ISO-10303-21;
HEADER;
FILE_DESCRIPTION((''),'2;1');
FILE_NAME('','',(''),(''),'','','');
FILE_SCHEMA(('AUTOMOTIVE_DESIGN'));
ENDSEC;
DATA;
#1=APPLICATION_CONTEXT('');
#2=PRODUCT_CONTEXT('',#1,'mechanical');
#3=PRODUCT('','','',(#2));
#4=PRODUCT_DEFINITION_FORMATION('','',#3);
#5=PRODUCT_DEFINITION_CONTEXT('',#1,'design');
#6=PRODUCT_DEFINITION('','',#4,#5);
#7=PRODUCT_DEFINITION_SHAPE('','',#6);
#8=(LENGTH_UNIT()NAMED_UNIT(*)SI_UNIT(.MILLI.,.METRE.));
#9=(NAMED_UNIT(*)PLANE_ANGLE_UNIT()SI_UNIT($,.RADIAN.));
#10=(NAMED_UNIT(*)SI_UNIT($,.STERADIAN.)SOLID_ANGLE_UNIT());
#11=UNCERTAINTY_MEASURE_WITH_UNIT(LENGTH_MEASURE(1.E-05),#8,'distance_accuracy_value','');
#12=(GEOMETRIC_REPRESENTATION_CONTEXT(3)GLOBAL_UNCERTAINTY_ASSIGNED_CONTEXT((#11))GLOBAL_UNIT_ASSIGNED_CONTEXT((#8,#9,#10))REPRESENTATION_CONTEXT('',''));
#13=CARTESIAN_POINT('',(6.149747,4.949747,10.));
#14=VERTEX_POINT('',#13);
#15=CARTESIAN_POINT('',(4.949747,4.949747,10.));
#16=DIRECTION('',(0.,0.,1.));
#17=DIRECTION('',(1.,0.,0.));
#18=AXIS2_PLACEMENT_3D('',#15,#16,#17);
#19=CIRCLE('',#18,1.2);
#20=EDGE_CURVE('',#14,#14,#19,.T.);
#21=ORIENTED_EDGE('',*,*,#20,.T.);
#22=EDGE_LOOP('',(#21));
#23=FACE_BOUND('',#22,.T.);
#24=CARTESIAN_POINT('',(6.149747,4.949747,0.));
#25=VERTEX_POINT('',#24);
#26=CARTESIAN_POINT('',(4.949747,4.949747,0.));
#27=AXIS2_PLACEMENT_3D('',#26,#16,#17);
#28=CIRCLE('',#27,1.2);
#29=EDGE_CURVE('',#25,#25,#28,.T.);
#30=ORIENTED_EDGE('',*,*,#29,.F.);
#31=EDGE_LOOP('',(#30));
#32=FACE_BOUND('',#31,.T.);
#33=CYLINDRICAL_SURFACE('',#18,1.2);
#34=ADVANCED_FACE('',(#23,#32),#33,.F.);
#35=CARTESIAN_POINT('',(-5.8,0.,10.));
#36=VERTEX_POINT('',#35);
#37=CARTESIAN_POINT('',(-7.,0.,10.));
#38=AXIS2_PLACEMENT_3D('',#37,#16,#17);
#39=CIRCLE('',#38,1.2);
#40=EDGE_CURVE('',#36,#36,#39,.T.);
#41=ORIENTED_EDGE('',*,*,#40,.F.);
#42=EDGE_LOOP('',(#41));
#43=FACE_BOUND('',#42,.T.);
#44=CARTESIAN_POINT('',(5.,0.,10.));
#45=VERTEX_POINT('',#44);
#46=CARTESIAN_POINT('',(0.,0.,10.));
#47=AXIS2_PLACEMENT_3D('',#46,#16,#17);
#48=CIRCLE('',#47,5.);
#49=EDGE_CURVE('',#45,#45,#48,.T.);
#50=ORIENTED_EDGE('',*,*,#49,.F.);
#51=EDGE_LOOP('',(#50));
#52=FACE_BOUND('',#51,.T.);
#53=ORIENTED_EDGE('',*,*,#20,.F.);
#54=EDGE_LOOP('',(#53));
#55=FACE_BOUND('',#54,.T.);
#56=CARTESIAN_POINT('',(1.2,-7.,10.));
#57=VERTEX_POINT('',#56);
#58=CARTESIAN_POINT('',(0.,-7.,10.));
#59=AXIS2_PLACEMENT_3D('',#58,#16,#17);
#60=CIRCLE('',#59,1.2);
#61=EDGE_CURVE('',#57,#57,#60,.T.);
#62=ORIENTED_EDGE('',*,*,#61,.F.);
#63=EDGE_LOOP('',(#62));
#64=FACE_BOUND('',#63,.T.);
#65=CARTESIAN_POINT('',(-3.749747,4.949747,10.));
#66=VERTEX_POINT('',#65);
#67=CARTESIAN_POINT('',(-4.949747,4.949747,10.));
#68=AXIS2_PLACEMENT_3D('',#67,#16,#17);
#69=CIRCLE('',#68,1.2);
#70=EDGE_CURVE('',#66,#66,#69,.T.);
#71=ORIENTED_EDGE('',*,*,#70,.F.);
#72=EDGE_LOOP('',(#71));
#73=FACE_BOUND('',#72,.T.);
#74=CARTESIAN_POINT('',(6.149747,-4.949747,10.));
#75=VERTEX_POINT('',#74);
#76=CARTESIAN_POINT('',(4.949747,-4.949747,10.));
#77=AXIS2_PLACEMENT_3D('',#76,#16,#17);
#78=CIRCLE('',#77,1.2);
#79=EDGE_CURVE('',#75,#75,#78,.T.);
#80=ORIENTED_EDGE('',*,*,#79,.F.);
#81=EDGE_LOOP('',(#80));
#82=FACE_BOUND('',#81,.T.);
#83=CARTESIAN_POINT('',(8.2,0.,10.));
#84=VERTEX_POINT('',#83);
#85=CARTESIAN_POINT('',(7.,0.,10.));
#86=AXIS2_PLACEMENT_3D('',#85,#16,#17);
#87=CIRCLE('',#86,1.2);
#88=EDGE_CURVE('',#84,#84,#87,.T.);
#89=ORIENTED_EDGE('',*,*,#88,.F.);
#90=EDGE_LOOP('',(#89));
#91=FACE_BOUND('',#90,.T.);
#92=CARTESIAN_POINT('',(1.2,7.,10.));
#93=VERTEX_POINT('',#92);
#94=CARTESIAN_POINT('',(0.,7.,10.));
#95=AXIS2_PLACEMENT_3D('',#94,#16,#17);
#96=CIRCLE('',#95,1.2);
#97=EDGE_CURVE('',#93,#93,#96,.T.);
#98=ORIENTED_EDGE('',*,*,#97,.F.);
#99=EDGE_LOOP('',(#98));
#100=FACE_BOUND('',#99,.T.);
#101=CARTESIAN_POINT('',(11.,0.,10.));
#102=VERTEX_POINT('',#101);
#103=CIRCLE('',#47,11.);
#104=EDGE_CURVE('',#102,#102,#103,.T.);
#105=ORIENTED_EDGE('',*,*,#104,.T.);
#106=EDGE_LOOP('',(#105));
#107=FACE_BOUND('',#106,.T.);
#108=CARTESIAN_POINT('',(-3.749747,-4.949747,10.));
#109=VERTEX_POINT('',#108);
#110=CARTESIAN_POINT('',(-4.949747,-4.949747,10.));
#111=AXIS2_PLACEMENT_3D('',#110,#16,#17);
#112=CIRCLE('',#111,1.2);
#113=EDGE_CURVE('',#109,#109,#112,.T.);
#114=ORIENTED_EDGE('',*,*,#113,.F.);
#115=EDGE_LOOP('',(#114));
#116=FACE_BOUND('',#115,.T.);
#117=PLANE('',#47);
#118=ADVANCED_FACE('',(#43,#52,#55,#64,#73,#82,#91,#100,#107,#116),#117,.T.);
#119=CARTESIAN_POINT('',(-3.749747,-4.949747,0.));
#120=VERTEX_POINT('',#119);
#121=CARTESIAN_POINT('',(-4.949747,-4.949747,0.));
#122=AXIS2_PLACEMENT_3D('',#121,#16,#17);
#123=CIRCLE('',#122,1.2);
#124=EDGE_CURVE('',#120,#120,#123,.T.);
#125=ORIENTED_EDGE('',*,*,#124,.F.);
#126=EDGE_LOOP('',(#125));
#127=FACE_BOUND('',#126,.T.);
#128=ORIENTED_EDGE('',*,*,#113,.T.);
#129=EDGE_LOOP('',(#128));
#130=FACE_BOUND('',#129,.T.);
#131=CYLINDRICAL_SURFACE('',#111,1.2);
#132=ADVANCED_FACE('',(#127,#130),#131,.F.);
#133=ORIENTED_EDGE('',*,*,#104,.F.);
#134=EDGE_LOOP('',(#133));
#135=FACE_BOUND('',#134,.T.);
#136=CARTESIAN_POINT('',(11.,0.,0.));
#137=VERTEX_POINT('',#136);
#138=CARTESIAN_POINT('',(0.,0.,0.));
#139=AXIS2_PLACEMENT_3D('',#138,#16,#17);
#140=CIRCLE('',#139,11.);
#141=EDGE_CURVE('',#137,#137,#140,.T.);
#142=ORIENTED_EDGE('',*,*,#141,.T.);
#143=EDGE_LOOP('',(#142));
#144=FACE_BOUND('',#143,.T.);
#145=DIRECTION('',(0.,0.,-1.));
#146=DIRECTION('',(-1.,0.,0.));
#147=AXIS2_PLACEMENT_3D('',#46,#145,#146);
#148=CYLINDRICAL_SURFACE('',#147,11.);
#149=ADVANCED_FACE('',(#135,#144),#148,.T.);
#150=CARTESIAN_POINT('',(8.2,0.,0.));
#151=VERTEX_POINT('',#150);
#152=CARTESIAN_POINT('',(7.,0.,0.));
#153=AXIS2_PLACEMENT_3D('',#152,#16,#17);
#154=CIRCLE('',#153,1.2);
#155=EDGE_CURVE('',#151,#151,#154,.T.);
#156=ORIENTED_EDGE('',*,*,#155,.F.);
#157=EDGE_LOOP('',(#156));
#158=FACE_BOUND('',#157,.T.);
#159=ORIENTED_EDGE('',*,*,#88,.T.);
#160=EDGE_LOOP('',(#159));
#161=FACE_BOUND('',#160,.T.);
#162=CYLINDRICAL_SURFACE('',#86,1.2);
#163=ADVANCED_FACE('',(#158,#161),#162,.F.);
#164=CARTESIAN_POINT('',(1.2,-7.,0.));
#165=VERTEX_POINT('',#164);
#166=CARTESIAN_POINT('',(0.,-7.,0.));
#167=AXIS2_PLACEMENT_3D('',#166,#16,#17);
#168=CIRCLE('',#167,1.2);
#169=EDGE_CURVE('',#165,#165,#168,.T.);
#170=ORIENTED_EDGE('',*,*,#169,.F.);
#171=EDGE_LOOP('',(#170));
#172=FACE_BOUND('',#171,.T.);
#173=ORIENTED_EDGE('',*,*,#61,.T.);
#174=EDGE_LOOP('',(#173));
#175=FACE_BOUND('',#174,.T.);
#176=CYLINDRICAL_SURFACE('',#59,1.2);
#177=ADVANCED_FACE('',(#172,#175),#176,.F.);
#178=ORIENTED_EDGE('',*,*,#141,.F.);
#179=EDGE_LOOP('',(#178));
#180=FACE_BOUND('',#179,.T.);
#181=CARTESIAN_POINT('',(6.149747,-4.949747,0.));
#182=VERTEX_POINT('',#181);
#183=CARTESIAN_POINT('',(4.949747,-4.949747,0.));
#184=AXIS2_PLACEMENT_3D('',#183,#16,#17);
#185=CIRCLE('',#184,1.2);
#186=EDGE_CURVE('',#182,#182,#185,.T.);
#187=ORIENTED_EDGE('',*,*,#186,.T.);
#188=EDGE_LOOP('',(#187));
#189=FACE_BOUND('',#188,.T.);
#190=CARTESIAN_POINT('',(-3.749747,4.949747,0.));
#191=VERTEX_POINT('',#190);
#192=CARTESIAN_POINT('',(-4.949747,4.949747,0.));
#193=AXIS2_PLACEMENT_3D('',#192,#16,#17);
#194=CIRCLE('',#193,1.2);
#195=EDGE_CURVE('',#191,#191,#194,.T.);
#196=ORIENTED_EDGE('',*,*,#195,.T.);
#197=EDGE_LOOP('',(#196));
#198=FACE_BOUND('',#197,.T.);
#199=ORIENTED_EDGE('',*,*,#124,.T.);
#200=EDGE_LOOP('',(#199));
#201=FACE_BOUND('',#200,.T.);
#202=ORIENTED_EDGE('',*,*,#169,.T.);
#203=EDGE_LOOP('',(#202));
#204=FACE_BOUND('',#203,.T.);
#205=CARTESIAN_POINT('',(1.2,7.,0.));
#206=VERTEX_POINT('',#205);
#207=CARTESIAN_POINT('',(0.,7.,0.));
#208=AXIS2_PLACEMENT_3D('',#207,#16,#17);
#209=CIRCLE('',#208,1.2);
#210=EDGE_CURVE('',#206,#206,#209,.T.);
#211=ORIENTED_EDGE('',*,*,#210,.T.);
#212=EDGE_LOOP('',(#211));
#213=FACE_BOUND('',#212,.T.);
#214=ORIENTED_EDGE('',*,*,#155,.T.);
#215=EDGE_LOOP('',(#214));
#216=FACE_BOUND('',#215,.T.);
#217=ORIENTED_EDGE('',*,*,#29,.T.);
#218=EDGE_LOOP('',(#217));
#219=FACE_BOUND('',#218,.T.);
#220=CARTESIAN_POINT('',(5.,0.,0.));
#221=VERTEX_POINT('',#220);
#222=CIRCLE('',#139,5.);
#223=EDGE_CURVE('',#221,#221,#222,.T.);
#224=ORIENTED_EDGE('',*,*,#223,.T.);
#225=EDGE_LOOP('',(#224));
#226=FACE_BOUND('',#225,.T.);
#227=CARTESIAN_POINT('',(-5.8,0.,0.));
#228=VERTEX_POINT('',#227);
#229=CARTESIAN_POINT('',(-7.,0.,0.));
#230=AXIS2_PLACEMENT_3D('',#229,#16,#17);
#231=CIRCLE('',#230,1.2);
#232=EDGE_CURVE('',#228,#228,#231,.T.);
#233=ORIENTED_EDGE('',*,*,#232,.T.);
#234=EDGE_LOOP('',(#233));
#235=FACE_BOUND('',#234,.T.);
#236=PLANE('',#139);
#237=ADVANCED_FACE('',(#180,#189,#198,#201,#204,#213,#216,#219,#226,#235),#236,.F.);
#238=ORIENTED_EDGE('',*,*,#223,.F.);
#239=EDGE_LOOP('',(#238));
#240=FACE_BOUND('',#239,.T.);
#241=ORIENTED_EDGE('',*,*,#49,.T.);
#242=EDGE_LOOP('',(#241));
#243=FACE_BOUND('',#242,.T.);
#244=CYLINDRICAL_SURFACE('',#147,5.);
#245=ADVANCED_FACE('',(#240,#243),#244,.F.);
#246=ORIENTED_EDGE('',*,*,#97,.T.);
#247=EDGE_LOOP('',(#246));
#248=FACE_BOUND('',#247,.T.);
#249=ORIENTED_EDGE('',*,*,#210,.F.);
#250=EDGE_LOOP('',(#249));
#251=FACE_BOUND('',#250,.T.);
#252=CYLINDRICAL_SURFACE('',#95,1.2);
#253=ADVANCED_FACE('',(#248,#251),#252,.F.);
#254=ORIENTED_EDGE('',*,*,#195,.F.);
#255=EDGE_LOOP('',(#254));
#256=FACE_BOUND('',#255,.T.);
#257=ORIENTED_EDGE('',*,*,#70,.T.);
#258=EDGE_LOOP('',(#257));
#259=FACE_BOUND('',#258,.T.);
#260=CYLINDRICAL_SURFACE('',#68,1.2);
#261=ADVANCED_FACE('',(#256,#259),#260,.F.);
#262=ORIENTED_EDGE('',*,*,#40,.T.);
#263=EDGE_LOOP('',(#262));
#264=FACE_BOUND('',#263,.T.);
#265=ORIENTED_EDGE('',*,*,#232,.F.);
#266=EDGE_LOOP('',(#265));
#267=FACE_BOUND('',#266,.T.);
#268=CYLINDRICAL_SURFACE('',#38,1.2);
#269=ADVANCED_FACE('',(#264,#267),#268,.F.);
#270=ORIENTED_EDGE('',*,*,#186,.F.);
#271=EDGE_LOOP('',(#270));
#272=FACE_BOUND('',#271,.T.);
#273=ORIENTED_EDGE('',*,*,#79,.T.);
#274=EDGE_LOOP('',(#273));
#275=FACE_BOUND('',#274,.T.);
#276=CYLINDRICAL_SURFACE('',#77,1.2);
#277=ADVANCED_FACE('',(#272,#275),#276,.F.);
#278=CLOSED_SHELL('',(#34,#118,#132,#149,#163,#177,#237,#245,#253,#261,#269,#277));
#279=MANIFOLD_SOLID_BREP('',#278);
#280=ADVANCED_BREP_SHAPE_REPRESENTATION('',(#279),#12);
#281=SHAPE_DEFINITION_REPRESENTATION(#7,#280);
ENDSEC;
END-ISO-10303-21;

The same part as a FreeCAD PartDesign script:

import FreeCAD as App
import Part
import Sketcher
from FreeCAD import Vector
Q = App.Units.Quantity

doc = App.newDocument("Part")
body = doc.addObject("PartDesign::Body", "Body")

# Sketch on XY plane
sketch1 = body.newObject("Sketcher::SketchObject", "Sketch")
sketch1.AttachmentSupport = (doc.getObject("XY_Plane"), [""])
sketch1.MapMode = "FlatFace"
sketch1.addGeometry(Part.Circle(Vector(0, 0, 0), Vector(0, 0, 1), 11), False)
sketch1.addGeometry(Part.Circle(Vector(0, 0, 0), Vector(0, 0, 1), 5), False)
sketch1.addConstraint(Sketcher.Constraint("Coincident", 0, 3, -1, 1))
sketch1.addConstraint(Sketcher.Constraint("Coincident", 1, 3, -1, 1))
sketch1.addConstraint(Sketcher.Constraint("Diameter", 0, Q("22 mm")))
sketch1.addConstraint(Sketcher.Constraint("Diameter", 1, Q("10 mm")))
pad1 = body.newObject("PartDesign::Pad", "Pad")
pad1.Profile = sketch1
pad1.Length = 10

# Sketch on XY plane
sketch2 = body.newObject("Sketcher::SketchObject", "Sketch001")
sketch2.AttachmentSupport = (doc.getObject("XY_Plane"), [""])
sketch2.MapMode = "FlatFace"
sketch2.AttachmentOffset = App.Placement(Vector(0, 0, 10), App.Rotation())
sketch2.addGeometry(Part.Circle(Vector(0, 7, 0), Vector(0, 0, 1), 1.2), False)
sketch2.addGeometry(Part.Circle(Vector(4.9, 4.9, 0), Vector(0, 0, 1), 1.2), False)
sketch2.addGeometry(Part.Circle(Vector(7, 0, 0), Vector(0, 0, 1), 1.2), False)
sketch2.addGeometry(Part.Circle(Vector(4.9, -4.9, 0), Vector(0, 0, 1), 1.2), False)
sketch2.addGeometry(Part.Circle(Vector(0, -7, 0), Vector(0, 0, 1), 1.2), False)
sketch2.addGeometry(Part.Circle(Vector(-4.9, -4.9, 0), Vector(0, 0, 1), 1.2), False)
sketch2.addGeometry(Part.Circle(Vector(-7, 0, 0), Vector(0, 0, 1), 1.2), False)
sketch2.addGeometry(Part.Circle(Vector(-4.9, 4.9, 0), Vector(0, 0, 1), 1.2), False)
sketch2.addGeometry(Part.Circle(Vector(0, 0, 0), Vector(0, 0, 1), 1.2), False)
sketch2.addConstraint(Sketcher.Constraint("Coincident", 8, 3, -1, 1))
sketch2.addConstraint(Sketcher.Constraint("Equal", 0, 1))
sketch2.addConstraint(Sketcher.Constraint("Equal", 1, 2))
sketch2.addConstraint(Sketcher.Constraint("Equal", 2, 3))
sketch2.addConstraint(Sketcher.Constraint("Equal", 3, 4))
sketch2.addConstraint(Sketcher.Constraint("Equal", 4, 5))
sketch2.addConstraint(Sketcher.Constraint("Equal", 5, 6))
sketch2.addConstraint(Sketcher.Constraint("Equal", 6, 7))
sketch2.addConstraint(Sketcher.Constraint("Equal", 7, 8))
sketch2.addConstraint(Sketcher.Constraint("Symmetric", 0, 3, 4, 3, -1, 1))
sketch2.addConstraint(Sketcher.Constraint("Symmetric", 1, 3, 5, 3, -1, 1))
sketch2.addConstraint(Sketcher.Constraint("Symmetric", 2, 3, 6, 3, -1, 1))
sketch2.addConstraint(Sketcher.Constraint("Symmetric", 3, 3, 7, 3, -1, 1))
sketch2.addConstraint(Sketcher.Constraint("Symmetric", 3, 3, 5, 3, -2))
sketch2.addConstraint(Sketcher.Constraint("PointOnObject", 0, 3, -2))
sketch2.addConstraint(Sketcher.Constraint("PointOnObject", 2, 3, -1))
sketch2.addConstraint(Sketcher.Constraint("Diameter", 0, Q("2.4 mm")))
sketch2.addConstraint(Sketcher.Constraint("DistanceY", -1, 1, 0, 3, Q("7 mm")))
sketch2.addConstraint(Sketcher.Constraint("DistanceX", -1, 1, 2, 3, Q("7 mm")))
sketch2.addConstraint(Sketcher.Constraint("DistanceX", -1, 1, 1, 3, Q("4.949747 mm")))
sketch2.addConstraint(Sketcher.Constraint("DistanceY", -1, 1, 1, 3, Q("4.949747 mm")))
doc.recompute()
hole = body.newObject("PartDesign::Hole", "Hole")
hole.Profile = sketch2
hole.ThreadType = "None"
hole.Diameter = 2.4
hole.DepthType = "Dimension"
hole.Depth = 10
hole.DrillPoint = "Flat"

doc.recompute()
